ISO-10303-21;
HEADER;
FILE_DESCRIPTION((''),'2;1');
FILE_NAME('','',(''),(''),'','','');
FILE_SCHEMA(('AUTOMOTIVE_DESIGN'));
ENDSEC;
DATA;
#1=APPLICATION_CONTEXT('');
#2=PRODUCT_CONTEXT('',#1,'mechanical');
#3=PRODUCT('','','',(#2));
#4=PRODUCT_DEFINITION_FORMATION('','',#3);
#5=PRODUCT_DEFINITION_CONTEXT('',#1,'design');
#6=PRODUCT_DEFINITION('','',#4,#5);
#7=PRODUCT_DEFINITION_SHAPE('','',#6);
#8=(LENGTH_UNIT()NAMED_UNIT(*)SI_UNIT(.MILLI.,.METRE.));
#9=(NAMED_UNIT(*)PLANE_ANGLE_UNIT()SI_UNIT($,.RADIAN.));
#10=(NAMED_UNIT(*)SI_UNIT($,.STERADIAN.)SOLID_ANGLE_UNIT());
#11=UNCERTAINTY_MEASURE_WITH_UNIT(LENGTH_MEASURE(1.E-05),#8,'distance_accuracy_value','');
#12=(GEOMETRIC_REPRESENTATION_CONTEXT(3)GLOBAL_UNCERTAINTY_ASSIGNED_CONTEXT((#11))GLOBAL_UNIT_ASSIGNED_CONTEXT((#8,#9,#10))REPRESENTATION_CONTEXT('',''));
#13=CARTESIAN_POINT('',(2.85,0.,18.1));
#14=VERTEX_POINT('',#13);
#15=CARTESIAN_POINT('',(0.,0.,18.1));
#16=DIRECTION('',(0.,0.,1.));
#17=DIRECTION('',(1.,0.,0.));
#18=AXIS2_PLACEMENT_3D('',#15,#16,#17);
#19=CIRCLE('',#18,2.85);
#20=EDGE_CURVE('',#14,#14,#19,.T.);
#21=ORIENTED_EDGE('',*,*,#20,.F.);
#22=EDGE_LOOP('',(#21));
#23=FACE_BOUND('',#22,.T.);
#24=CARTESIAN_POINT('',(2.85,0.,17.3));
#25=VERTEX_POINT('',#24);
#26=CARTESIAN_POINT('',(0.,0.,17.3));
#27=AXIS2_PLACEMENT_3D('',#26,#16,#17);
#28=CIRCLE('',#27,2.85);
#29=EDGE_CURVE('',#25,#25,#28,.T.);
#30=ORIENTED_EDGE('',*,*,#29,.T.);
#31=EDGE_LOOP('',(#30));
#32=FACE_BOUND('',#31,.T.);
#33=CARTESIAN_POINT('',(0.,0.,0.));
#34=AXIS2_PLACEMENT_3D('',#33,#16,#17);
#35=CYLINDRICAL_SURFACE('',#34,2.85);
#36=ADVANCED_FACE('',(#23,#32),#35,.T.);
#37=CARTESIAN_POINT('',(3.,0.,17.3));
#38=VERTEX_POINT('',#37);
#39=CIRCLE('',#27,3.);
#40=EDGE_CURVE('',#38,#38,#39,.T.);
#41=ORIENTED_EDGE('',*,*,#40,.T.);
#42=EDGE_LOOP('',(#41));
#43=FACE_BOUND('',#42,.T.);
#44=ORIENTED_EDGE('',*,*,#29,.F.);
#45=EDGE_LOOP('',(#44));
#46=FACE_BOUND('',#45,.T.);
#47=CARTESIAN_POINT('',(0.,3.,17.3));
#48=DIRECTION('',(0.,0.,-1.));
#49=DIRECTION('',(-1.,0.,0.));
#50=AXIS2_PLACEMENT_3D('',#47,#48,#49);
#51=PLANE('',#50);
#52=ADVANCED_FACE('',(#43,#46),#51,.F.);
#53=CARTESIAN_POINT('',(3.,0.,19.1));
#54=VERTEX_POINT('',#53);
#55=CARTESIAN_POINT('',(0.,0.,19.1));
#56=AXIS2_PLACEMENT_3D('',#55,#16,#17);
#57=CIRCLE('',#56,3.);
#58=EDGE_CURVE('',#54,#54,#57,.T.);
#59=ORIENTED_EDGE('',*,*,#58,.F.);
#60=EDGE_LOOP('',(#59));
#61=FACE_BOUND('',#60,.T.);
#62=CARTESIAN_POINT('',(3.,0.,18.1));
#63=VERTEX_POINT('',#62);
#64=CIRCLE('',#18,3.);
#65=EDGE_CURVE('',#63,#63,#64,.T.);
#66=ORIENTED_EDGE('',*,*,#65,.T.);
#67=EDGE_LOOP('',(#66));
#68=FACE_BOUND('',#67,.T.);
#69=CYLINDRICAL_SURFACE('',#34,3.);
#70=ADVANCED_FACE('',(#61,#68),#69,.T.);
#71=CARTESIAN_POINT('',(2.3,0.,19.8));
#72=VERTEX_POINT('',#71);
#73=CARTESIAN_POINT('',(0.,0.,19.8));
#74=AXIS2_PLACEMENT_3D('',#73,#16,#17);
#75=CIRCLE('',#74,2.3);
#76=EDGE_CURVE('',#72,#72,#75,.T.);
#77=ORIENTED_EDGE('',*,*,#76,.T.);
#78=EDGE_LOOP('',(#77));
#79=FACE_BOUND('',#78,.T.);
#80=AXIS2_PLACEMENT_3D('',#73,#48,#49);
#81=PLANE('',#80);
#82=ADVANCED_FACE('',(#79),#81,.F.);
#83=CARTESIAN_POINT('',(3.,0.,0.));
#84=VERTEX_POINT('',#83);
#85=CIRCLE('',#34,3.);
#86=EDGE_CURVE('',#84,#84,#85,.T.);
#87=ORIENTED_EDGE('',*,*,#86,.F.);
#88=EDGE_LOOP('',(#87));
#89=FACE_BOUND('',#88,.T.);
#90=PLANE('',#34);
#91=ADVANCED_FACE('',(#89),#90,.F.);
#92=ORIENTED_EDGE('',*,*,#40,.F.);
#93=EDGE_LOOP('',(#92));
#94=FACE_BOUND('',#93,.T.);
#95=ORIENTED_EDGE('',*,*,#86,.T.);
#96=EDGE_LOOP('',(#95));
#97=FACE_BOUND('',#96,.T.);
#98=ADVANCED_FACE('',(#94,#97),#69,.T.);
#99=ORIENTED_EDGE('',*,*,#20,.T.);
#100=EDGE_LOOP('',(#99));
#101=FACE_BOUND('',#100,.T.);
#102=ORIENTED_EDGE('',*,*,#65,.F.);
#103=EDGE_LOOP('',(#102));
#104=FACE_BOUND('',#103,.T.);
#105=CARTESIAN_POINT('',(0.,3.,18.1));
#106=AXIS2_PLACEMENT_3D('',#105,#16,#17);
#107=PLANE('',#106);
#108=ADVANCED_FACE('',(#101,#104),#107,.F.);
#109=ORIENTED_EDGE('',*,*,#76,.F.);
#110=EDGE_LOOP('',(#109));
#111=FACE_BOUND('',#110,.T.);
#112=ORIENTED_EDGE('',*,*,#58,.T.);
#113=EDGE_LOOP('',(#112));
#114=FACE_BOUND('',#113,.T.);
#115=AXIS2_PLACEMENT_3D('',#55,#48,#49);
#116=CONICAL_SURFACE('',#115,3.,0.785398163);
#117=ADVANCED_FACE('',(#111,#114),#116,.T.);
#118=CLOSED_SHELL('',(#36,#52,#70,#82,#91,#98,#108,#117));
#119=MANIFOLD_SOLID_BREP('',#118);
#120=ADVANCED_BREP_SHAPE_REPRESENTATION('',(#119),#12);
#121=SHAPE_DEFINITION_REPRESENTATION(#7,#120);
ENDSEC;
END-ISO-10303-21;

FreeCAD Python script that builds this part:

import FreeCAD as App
import Part
import Sketcher
Q = App.Units.Quantity


def add_polygon(sketch, points):
    """Adds a closed chain of lines whose ends are joined by coincident constraints."""
    first, n = sketch.GeometryCount, len(points)
    for a, b in zip(points, points[1:] + points[:1]):
        sketch.addGeometry(Part.LineSegment(App.Vector(*a, 0), App.Vector(*b, 0)), False)
    for i in range(n):
        sketch.addConstraint(Sketcher.Constraint("Coincident", first + i, 2, first + (i + 1) % n, 1))

doc = App.newDocument("Part")
body = doc.addObject("PartDesign::Body", "Body")

# Sketch on YZ plane
sketch1 = body.newObject("Sketcher::SketchObject", "Sketch")
sketch1.AttachmentSupport = (doc.getObject("YZ_Plane"), [""])
sketch1.MapMode = "FlatFace"
add_polygon(sketch1, [(3, 18.1), (3, 19.1), (2.3, 19.8), (0, 19.8), (0, 0), (3, 0), (3, 17.3), (2.85, 17.3), (2.85, 18.1)])  # lines 0-8
sketch1.addConstraint(Sketcher.Constraint("Vertical", 0))
sketch1.addConstraint(Sketcher.Constraint("Horizontal", 2))
sketch1.addConstraint(Sketcher.Constraint("Vertical", 3))
sketch1.addConstraint(Sketcher.Constraint("Horizontal", 4))
sketch1.addConstraint(Sketcher.Constraint("Vertical", 5))
sketch1.addConstraint(Sketcher.Constraint("Horizontal", 6))
sketch1.addConstraint(Sketcher.Constraint("Vertical", 7))
sketch1.addConstraint(Sketcher.Constraint("Horizontal", 8))
sketch1.addConstraint(Sketcher.Constraint("Coincident", 3, 2, -1, 1))
sketch1.addConstraint(Sketcher.Constraint("Vertical", 0, 2, 4, 2))
sketch1.addConstraint(Sketcher.Constraint("DistanceX", 4, 1, 4, 2, Q("3 mm")))
sketch1.addConstraint(Sketcher.Constraint("DistanceY", 0, 1, 0, 2, Q("1 mm")))
sketch1.addConstraint(Sketcher.Constraint("Angle", 1, Q("135 deg")))
sketch1.addConstraint(Sketcher.Constraint("DistanceX", 2, 2, 2, 1, Q("2.3 mm")))
sketch1.addConstraint(Sketcher.Constraint("DistanceY", 3, 2, 3, 1, Q("19.8 mm")))
sketch1.addConstraint(Sketcher.Constraint("DistanceY", 5, 1, 5, 2, Q("17.3 mm")))
sketch1.addConstraint(Sketcher.Constraint("DistanceX", 6, 2, 6, 1, Q("0.15 mm")))
revolution = body.newObject("PartDesign::Revolution", "Revolution")
revolution.Profile = sketch1
revolution.ReferenceAxis = (sketch1, ["V_Axis"])
revolution.Angle = 360

doc.recompute()
